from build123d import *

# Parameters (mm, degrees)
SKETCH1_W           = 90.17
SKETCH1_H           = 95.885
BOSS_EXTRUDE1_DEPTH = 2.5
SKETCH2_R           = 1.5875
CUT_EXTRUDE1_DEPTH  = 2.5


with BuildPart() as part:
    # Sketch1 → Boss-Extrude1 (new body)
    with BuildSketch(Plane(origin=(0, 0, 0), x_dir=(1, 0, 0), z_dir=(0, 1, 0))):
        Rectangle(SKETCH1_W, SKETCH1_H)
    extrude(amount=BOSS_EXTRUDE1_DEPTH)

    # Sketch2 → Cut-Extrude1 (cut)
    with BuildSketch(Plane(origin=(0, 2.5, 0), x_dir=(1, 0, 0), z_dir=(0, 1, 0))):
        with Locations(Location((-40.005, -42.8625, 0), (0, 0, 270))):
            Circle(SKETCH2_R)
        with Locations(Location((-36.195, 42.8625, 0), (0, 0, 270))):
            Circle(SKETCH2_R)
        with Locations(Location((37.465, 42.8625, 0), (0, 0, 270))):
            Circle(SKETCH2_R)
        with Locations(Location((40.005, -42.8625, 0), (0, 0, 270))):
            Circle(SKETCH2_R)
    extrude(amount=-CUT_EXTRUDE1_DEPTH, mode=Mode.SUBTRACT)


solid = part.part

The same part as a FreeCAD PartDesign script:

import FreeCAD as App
import Part
import Sketcher
from FreeCAD import Vector
Q = App.Units.Quantity


def add_polygon(sketch, points):
    """Adds a closed chain of lines whose ends are joined by coincident constraints."""
    first, n = sketch.GeometryCount, len(points)
    for a, b in zip(points, points[1:] + points[:1]):
        sketch.addGeometry(Part.LineSegment(App.Vector(*a, 0), App.Vector(*b, 0)), False)
    for i in range(n):
        sketch.addConstraint(Sketcher.Constraint("Coincident", first + i, 2, first + (i + 1) % n, 1))

doc = App.newDocument("Part")
params = doc.addObject("Spreadsheet::Sheet", "Params")
for row, (alias, value) in enumerate([
    ("sketch1_width", "3.55 in"),
    ("sketch1_height", "3.775 in"),
    ("pad1_length", "2.5 mm"),
    ("sketch2_diameter", "0.125 in"),
    ("pocket1_length", "2.5 mm"),
], start=1):
    params.set(f"A{row}", alias)
    params.set(f"B{row}", "=" + value)
    params.setAlias(f"B{row}", alias)

body = doc.addObject("PartDesign::Body", "Body")

# Sketch on XZ plane
sketch1 = body.newObject("Sketcher::SketchObject", "Sketch")
sketch1.AttachmentSupport = (doc.getObject("XZ_Plane"), [""])
sketch1.MapMode = "FlatFace"
add_polygon(sketch1, [(-45, -48), (-45, 48), (45, 48), (45, -48)])  # lines 0-3
sketch1.addConstraint([
    Sketcher.Constraint("Vertical", 0),
    Sketcher.Constraint("Horizontal", 1),
    Sketcher.Constraint("Vertical", 2),
    Sketcher.Constraint("Horizontal", 3),
    Sketcher.Constraint("Symmetric", 0, 2, 2, 2, -1, 1),
    Sketcher.Constraint("DistanceX", 1, 1, 1, 2, Q("3.55 in")),
    Sketcher.Constraint("DistanceY", 0, 1, 0, 2, Q("3.775 in")),
])
sketch1.setExpression("Constraints[9]", "Params.sketch1_width")
sketch1.setExpression("Constraints[10]", "Params.sketch1_height")
pad1 = body.newObject("PartDesign::Pad", "Pad")
pad1.Profile = sketch1
pad1.setExpression("Length", "Params.pad1_length")
pad1.Reversed = True

# Sketch on XZ plane
sketch2 = body.newObject("Sketcher::SketchObject", "Sketch001")
sketch2.AttachmentSupport = (doc.getObject("XZ_Plane"), [""])
sketch2.MapMode = "FlatFace"
sketch2.AttachmentOffset = App.Placement(Vector(0, 0, -2.5), App.Rotation())
sketch2.addGeometry([
    Part.Circle(Vector(-40, 42.9, 0), Vector(0, 0, 1), 1.6),
    Part.Circle(Vector(-36.2, -42.9, 0), Vector(0, 0, 1), 1.6),
    Part.Circle(Vector(37.5, -42.9, 0), Vector(0, 0, 1), 1.6),
    Part.Circle(Vector(40, 42.9, 0), Vector(0, 0, 1), 1.6),
], False)
sketch2.addConstraint([
    Sketcher.Constraint("Equal", 0, 1),
    Sketcher.Constraint("Equal", 1, 2),
    Sketcher.Constraint("Equal", 2, 3),
    Sketcher.Constraint("Symmetric", 0, 3, 3, 3, -2),
    Sketcher.Constraint("Horizontal", 1, 3, 2, 3),
    Sketcher.Constraint("Diameter", 0, Q("0.125 in")),
    Sketcher.Constraint("DistanceX", 1, 3, 3, 3, Q("3 in")),
    Sketcher.Constraint("DistanceX", 1, 3, 2, 3, Q("2.9 in")),
    Sketcher.Constraint("DistanceX", 0, 3, 1, 3, Q("0.15 in")),
    Sketcher.Constraint("DistanceY", -1, 1, 0, 3, Q("1.6875 in")),
    Sketcher.Constraint("DistanceY", 1, 3, -1, 1, Q("1.6875 in")),
])
sketch2.setExpression("Constraints[5]", "Params.sketch2_diameter")
pocket1 = body.newObject("PartDesign::Pocket", "Pocket")
pocket1.Profile = sketch2
pocket1.setExpression("Length", "Params.pocket1_length")
pocket1.Reversed = True

doc.recompute()
